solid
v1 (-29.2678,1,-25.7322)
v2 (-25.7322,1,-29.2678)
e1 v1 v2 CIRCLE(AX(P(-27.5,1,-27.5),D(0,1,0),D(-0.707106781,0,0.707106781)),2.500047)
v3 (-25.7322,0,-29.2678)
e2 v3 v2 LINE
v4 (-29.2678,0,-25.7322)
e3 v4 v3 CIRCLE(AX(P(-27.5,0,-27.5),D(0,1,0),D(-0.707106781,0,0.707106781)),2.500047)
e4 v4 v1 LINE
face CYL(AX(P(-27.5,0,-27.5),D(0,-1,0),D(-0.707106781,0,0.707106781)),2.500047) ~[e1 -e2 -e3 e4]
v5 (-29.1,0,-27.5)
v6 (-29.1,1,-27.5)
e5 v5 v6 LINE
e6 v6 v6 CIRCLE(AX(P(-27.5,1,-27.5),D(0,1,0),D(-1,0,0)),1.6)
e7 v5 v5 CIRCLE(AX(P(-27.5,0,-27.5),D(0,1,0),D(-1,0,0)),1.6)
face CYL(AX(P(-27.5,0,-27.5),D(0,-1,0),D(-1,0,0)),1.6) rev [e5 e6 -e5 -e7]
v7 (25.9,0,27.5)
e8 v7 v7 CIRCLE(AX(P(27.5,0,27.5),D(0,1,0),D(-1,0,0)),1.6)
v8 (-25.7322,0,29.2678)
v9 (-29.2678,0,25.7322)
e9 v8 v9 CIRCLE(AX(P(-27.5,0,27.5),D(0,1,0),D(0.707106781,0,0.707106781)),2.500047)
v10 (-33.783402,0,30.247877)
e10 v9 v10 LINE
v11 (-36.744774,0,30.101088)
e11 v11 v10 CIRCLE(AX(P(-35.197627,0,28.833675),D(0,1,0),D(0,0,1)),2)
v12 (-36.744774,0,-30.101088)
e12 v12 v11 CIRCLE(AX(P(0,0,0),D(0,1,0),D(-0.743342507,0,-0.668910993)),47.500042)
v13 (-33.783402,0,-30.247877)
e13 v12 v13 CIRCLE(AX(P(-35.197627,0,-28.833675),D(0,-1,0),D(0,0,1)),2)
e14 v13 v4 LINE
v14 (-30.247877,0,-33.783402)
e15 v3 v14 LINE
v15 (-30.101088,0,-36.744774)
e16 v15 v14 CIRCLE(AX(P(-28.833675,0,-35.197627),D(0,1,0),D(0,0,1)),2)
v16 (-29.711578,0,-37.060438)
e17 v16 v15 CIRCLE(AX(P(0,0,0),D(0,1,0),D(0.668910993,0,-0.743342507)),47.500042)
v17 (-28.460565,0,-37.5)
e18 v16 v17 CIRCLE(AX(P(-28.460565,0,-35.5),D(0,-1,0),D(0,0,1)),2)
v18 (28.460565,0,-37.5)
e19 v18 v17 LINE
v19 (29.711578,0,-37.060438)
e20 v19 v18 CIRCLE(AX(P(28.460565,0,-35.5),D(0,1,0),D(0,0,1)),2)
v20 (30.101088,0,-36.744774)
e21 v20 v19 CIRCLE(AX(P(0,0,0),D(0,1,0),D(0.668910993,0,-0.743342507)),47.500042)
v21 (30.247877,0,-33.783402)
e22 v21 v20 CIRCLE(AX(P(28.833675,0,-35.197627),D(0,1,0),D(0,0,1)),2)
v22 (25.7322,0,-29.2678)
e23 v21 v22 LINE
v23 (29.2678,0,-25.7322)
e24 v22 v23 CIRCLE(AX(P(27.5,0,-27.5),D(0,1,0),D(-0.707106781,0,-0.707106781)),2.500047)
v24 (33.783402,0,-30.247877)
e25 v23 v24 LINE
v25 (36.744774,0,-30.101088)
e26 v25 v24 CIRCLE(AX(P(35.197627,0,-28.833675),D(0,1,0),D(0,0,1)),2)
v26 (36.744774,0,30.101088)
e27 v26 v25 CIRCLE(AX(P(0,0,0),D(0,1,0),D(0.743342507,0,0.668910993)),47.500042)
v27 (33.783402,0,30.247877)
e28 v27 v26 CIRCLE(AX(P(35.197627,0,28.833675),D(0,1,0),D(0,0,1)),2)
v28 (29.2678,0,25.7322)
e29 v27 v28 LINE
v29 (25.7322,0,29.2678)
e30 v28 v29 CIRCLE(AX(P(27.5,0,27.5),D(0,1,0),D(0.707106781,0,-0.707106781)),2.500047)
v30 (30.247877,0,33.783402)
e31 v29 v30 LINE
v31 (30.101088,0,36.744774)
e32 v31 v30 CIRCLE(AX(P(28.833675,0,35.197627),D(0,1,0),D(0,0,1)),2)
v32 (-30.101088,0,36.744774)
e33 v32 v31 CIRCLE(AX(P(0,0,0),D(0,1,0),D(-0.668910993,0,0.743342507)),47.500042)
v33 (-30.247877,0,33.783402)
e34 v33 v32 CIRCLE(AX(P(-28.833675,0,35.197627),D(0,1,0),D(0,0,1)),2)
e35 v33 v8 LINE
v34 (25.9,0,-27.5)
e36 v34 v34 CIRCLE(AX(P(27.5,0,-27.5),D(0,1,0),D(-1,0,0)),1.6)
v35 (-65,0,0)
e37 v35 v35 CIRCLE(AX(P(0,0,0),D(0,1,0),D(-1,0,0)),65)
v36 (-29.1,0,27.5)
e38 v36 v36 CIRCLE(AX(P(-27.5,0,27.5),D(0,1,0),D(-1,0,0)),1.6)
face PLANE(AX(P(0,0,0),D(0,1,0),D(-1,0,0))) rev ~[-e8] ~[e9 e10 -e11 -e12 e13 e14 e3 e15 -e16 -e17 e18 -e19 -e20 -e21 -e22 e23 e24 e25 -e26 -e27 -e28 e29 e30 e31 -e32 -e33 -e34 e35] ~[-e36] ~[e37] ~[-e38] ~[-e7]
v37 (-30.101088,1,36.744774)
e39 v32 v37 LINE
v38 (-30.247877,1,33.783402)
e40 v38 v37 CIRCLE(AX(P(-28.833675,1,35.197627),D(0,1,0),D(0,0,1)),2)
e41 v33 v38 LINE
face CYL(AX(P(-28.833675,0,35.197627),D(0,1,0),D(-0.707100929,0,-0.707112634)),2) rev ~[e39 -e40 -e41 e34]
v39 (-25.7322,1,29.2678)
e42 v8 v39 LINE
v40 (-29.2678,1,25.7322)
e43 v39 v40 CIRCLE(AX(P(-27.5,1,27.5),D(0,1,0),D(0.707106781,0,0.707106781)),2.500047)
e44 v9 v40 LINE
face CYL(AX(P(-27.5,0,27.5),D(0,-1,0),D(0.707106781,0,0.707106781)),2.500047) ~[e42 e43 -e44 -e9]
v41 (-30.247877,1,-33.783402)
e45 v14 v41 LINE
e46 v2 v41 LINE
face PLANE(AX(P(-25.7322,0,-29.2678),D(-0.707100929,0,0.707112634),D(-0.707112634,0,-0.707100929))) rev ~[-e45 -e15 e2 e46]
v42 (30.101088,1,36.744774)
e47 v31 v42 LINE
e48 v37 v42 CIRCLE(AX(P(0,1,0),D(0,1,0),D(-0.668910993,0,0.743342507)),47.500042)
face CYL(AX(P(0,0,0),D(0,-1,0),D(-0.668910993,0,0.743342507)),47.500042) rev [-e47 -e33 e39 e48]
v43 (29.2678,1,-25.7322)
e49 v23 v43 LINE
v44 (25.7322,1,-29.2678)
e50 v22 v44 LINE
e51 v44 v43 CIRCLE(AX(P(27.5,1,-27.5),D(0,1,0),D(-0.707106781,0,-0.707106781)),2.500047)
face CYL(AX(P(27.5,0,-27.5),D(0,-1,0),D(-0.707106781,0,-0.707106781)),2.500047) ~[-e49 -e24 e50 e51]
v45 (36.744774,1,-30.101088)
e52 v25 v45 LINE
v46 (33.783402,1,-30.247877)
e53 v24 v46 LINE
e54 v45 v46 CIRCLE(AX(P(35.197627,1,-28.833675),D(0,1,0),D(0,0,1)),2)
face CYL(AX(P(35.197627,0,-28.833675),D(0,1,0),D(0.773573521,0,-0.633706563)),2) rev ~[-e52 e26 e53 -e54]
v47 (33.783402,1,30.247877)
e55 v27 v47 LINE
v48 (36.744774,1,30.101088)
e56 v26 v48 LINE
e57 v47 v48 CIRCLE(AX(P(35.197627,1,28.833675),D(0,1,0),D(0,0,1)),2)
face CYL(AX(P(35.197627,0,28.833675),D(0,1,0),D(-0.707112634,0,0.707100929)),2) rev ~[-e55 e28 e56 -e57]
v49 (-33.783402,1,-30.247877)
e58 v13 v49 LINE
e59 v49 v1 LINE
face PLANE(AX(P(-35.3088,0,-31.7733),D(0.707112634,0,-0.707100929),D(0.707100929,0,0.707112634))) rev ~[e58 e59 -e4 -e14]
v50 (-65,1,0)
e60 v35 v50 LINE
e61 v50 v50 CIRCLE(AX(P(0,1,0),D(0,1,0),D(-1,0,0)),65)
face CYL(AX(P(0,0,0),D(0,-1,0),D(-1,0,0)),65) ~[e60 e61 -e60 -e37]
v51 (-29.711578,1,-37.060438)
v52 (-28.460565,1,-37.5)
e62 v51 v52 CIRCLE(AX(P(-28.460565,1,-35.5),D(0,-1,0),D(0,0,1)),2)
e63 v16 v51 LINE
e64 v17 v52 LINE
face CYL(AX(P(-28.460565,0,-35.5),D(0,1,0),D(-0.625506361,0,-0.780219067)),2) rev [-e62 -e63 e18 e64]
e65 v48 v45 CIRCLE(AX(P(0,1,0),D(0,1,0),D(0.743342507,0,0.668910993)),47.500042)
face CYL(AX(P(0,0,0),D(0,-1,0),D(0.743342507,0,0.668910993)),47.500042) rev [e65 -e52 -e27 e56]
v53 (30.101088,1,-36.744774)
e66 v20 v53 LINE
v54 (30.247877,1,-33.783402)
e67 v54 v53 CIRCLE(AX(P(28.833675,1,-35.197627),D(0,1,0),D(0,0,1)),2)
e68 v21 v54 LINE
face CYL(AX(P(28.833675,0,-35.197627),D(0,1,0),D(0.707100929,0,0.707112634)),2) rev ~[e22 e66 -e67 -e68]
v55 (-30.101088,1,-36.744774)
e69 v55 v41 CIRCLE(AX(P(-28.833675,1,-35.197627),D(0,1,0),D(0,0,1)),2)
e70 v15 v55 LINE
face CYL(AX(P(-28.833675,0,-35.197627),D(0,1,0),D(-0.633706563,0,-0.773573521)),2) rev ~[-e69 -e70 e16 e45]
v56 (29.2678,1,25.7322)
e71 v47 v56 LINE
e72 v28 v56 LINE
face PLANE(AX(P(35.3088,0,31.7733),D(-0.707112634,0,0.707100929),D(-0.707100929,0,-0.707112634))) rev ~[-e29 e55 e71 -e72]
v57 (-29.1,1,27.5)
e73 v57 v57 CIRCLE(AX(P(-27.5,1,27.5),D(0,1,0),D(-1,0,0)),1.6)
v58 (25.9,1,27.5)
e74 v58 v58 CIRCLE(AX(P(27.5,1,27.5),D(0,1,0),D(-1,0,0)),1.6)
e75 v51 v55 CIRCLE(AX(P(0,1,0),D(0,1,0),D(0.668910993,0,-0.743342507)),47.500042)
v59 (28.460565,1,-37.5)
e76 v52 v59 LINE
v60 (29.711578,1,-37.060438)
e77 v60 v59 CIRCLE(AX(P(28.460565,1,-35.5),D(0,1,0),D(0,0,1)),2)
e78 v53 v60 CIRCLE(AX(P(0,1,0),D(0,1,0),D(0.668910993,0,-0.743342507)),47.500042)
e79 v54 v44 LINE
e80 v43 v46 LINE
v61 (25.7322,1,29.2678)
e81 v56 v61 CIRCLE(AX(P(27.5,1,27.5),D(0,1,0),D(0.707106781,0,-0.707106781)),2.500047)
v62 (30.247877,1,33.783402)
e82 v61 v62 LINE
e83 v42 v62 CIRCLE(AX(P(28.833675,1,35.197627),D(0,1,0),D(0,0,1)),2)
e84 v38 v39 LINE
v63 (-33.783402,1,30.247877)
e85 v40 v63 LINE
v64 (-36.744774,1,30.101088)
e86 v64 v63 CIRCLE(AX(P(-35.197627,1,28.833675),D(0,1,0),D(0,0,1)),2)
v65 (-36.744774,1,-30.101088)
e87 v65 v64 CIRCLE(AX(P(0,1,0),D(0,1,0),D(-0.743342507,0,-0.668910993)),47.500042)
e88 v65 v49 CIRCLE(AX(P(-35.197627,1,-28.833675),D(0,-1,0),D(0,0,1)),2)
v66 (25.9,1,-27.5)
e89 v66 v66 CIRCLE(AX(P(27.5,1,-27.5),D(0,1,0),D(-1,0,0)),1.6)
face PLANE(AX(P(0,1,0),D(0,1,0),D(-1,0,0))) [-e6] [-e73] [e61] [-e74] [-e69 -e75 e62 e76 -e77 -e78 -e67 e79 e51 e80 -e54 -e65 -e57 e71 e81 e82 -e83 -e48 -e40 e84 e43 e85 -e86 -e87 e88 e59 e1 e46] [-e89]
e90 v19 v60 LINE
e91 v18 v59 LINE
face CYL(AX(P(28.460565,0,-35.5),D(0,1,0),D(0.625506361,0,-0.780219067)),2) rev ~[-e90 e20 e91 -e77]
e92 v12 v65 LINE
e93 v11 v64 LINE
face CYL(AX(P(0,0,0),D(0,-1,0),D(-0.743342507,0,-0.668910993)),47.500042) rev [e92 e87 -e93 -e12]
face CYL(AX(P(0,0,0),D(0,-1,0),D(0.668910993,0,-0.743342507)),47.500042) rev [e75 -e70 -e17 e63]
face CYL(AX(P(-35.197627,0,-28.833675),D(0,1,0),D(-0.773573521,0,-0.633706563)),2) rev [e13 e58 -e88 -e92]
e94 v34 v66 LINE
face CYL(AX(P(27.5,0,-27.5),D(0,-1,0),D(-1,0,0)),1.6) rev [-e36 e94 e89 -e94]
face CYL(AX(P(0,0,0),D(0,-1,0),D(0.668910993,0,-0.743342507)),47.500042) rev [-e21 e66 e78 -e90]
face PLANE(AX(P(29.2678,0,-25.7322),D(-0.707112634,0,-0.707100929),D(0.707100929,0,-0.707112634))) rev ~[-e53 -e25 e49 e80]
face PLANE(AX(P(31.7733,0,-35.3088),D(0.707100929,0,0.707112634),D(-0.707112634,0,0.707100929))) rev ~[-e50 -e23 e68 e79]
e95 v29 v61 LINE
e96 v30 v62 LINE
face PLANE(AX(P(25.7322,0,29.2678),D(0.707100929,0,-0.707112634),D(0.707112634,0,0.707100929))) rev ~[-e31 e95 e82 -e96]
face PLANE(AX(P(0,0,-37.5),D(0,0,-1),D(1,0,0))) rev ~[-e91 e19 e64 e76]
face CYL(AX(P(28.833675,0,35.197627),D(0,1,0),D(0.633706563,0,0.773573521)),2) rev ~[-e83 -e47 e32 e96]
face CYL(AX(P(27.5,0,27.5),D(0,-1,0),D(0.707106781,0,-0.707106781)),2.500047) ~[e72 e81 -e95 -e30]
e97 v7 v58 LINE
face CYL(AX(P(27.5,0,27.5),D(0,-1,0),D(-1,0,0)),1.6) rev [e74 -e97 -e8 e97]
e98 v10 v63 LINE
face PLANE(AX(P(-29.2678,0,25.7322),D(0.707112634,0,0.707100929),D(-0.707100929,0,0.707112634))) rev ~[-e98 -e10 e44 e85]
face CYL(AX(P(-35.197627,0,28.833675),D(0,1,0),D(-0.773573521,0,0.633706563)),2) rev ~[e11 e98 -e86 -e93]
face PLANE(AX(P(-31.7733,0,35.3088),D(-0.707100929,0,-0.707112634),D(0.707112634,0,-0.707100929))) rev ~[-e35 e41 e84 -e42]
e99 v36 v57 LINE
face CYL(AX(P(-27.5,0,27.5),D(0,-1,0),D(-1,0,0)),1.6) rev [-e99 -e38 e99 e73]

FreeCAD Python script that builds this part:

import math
import FreeCAD as App
import Part
import Sketcher


def edges_at(feature, points):
    """Names of the edges that pass closest to the given points."""
    edges = feature.Shape.Edges
    near = lambda p: min(range(len(edges)), key=lambda i: edges[i].distToShape(Part.Vertex(*p))[0])
    return sorted({f"Edge{near(p) + 1}" for p in points})

doc = App.newDocument("Part")
params = doc.addObject("Spreadsheet::Sheet", "Params")
for row, (alias, value) in enumerate([
    ("sketch1_diameter", "130 mm"),
    ("sketch1_diameter2", "3.2 mm"),
    ("sketch1_radius", "2.5 mm"),
    ("sketch1_radius2", "47.5 mm"),
    ("pad1_length", "1 mm"),
    ("fillet_radius", "2 mm"),
], start=1):
    params.set(f"A{row}", alias)
    params.set(f"B{row}", "=" + value)
    params.setAlias(f"B{row}", alias)

body = doc.addObject("PartDesign::Body", "Body")

sketch1 = body.newObject("Sketcher::SketchObject", "Sketch")
sketch1.AttachmentSupport = (doc.getObject("XZ_Plane"), [""])
sketch1.MapMode = "FlatFace"
sketch1.addGeometry(Part.Circle(App.Vector(0, 0, 0), App.Vector(0, 0, 1), 65), False)
sketch1.addGeometry(Part.Circle(App.Vector(27.5, -27.5, 0), App.Vector(0, 0, 1), 1.6), False)
sketch1.addGeometry(Part.Circle(App.Vector(-27.5, -27.5, 0), App.Vector(0, 0, 1), 1.6), False)
sketch1.addGeometry(Part.Circle(App.Vector(27.5, 27.5, 0), App.Vector(0, 0, 1), 1.6), False)
sketch1.addGeometry(Part.ArcOfCircle(Part.Circle(App.Vector(0, 0, 0), App.Vector(0, 0, 1), 47.5), math.radians(138), math.radians(222)), False)
sketch1.addGeometry(Part.LineSegment(App.Vector(-35.3, -31.8, 0), App.Vector(-29.3, -25.7, 0)), False)
sketch1.addGeometry(Part.ArcOfCircle(Part.Circle(App.Vector(-27.5, -27.5, 0), App.Vector(0, 0, 1), 2.5), math.radians(-45), math.radians(135)), False)
sketch1.addGeometry(Part.LineSegment(App.Vector(-25.7, -29.3, 0), App.Vector(-31.8, -35.3, 0)), False)
sketch1.addGeometry(Part.ArcOfCircle(Part.Circle(App.Vector(0, 0, 0), App.Vector(0, 0, 1), 47.5), math.radians(-131.98), math.radians(-127.86)), False)
sketch1.addGeometry(Part.LineSegment(App.Vector(-29.2, -37.5, 0), App.Vector(29.2, -37.5, 0)), False)
sketch1.addGeometry(Part.ArcOfCircle(Part.Circle(App.Vector(0, 0, 0), App.Vector(0, 0, 1), 47.5), math.radians(-52.14), math.radians(-48.02)), False)
sketch1.addGeometry(Part.LineSegment(App.Vector(31.8, -35.3, 0), App.Vector(25.7, -29.3, 0)), False)
sketch1.addGeometry(Part.ArcOfCircle(Part.Circle(App.Vector(27.5, -27.5, 0), App.Vector(0, 0, 1), 2.5), math.radians(45), math.radians(225)), False)
sketch1.addGeometry(Part.LineSegment(App.Vector(29.3, -25.7, 0), App.Vector(35.3, -31.8, 0)), False)
sketch1.addGeometry(Part.ArcOfCircle(Part.Circle(App.Vector(0, 0, 0), App.Vector(0, 0, 1), 47.5), math.radians(-42), math.radians(42)), False)
sketch1.addGeometry(Part.LineSegment(App.Vector(35.3, 31.8, 0), App.Vector(29.3, 25.7, 0)), False)
sketch1.addGeometry(Part.ArcOfCircle(Part.Circle(App.Vector(27.5, 27.5, 0), App.Vector(0, 0, 1), 2.5), math.radians(135), math.radians(315)), False)
sketch1.addGeometry(Part.LineSegment(App.Vector(25.7, 29.3, 0), App.Vector(31.8, 35.3, 0)), False)
sketch1.addGeometry(Part.ArcOfCircle(Part.Circle(App.Vector(0, 0, 0), App.Vector(0, 0, 1), 47.5), math.radians(48), math.radians(132)), False)
sketch1.addGeometry(Part.LineSegment(App.Vector(-31.8, 35.3, 0), App.Vector(-25.7, 29.3, 0)), False)
sketch1.addGeometry(Part.ArcOfCircle(Part.Circle(App.Vector(-27.5, 27.5, 0), App.Vector(0, 0, 1), 2.5), math.radians(-135), math.radians(45)), False)
sketch1.addGeometry(Part.LineSegment(App.Vector(-29.3, 25.7, 0), App.Vector(-35.3, 31.8, 0)), False)
sketch1.addGeometry(Part.Circle(App.Vector(-27.5, 27.5, 0), App.Vector(0, 0, 1), 1.6), False)
sketch1.addConstraint(Sketcher.Constraint("Coincident", 4, 2, 5, 1))
sketch1.addConstraint(Sketcher.Constraint("Tangent", 5, 2, 6, 2))
sketch1.addConstraint(Sketcher.Constraint("Tangent", 6, 1, 7, 1))
sketch1.addConstraint(Sketcher.Constraint("Coincident", 7, 2, 8, 1))
sketch1.addConstraint(Sketcher.Constraint("Coincident", 8, 2, 9, 1))
sketch1.addConstraint(Sketcher.Constraint("Coincident", 9, 2, 10, 1))
sketch1.addConstraint(Sketcher.Constraint("Coincident", 10, 2, 11, 1))
sketch1.addConstraint(Sketcher.Constraint("Tangent", 11, 2, 12, 2))
sketch1.addConstraint(Sketcher.Constraint("Tangent", 12, 1, 13, 1))
sketch1.addConstraint(Sketcher.Constraint("Coincident", 13, 2, 14, 1))
sketch1.addConstraint(Sketcher.Constraint("Coincident", 14, 2, 15, 1))
sketch1.addConstraint(Sketcher.Constraint("Tangent", 15, 2, 16, 2))
sketch1.addConstraint(Sketcher.Constraint("Tangent", 16, 1, 17, 1))
sketch1.addConstraint(Sketcher.Constraint("Coincident", 17, 2, 18, 1))
sketch1.addConstraint(Sketcher.Constraint("Coincident", 18, 2, 19, 1))
sketch1.addConstraint(Sketcher.Constraint("Tangent", 19, 2, 20, 2))
sketch1.addConstraint(Sketcher.Constraint("Tangent", 20, 1, 21, 1))
sketch1.addConstraint(Sketcher.Constraint("Coincident", 21, 2, 4, 1))
sketch1.addConstraint(Sketcher.Constraint("Horizontal", 9))
sketch1.addConstraint(Sketcher.Constraint("Coincident", 0, 3, -1, 1))
sketch1.addConstraint(Sketcher.Constraint("Coincident", 4, 3, -1, 1))
sketch1.addConstraint(Sketcher.Constraint("Coincident", 8, 3, -1, 1))
sketch1.addConstraint(Sketcher.Constraint("Coincident", 10, 3, -1, 1))
sketch1.addConstraint(Sketcher.Constraint("Coincident", 14, 3, -1, 1))
sketch1.addConstraint(Sketcher.Constraint("Coincident", 18, 3, -1, 1))
sketch1.addConstraint(Sketcher.Constraint("Coincident", 6, 3, 2, 3))
sketch1.addConstraint(Sketcher.Constraint("Coincident", 12, 3, 1, 3))
sketch1.addConstraint(Sketcher.Constraint("Coincident", 16, 3, 3, 3))
sketch1.addConstraint(Sketcher.Constraint("Coincident", 22, 3, 20, 3))
sketch1.addConstraint(Sketcher.Constraint("Equal", 1, 2))
sketch1.addConstraint(Sketcher.Constraint("Equal", 2, 3))
sketch1.addConstraint(Sketcher.Constraint("Equal", 4, 8))
sketch1.addConstraint(Sketcher.Constraint("Equal", 8, 10))
sketch1.addConstraint(Sketcher.Constraint("Equal", 6, 12))
sketch1.addConstraint(Sketcher.Constraint("Equal", 10, 14))
sketch1.addConstraint(Sketcher.Constraint("Equal", 12, 16))
sketch1.addConstraint(Sketcher.Constraint("Equal", 14, 18))
sketch1.addConstraint(Sketcher.Constraint("Equal", 16, 20))
sketch1.addConstraint(Sketcher.Constraint("Equal", 3, 22))
sketch1.addConstraint(Sketcher.Constraint("Symmetric", 2, 3, 3, 3, -1, 1))
sketch1.addConstraint(Sketcher.Constraint("Symmetric", 1, 3, 20, 3, -1, 1))
sketch1.addConstraint(Sketcher.Constraint("Symmetric", 1, 3, 2, 3, -2))
sketch1.addConstraint(Sketcher.Constraint("Parallel", 5, 7))
sketch1.addConstraint(Sketcher.Constraint("Perpendicular", 7, 11))
sketch1.addConstraint(Sketcher.Constraint("Parallel", 11, 13))
sketch1.addConstraint(Sketcher.Constraint("Perpendicular", 13, 15))
sketch1.addConstraint(Sketcher.Constraint("Parallel", 15, 17))
sketch1.addConstraint(Sketcher.Constraint("Perpendicular", 17, 19))
sketch1.addConstraint(Sketcher.Constraint("Parallel", 19, 21))
sketch1.addConstraint(Sketcher.Constraint("Horizontal", 7, 2, 10, 2))
sketch1.addConstraint(Sketcher.Constraint("Equal", 5, 7))
sketch1.addConstraint(Sketcher.Constraint("Diameter", 0, 130.0))
sketch1.addConstraint(Sketcher.Constraint("Diameter", 1, 3.2))
sketch1.addConstraint(Sketcher.Constraint("Radius", 6, 2.5))
sketch1.addConstraint(Sketcher.Constraint("DistanceX", 2, 3, 1, 3, 55.0))
sketch1.addConstraint(Sketcher.Constraint("DistanceY", 8, 2, 2, 3, 10.0))
sketch1.addConstraint(Sketcher.Constraint("Radius", 4, 47.5))
sketch1.setExpression("Constraints[51]", "Params.sketch1_diameter")
sketch1.setExpression("Constraints[52]", "Params.sketch1_diameter2")
sketch1.setExpression("Constraints[53]", "Params.sketch1_radius")
sketch1.setExpression("Constraints[56]", "Params.sketch1_radius2")
pad1 = body.newObject("PartDesign::Pad", "Pad")
pad1.Profile = sketch1
pad1.setExpression("Length", "Params.pad1_length")
pad1.Reversed = True
doc.recompute()

fillet = body.newObject("PartDesign::Fillet", "Fillet")
fillet.Base = (pad1, edges_at(pad1, [
    (-31.773, 0.5, 35.309),
    (-35.309, 0.5, 31.773),
    (-31.773, 0.5, -35.309),
    (-35.309, 0.5, -31.773),
    (35.309, 0.5, -31.773),
    (31.773, 0.5, -35.309),
    (31.773, 0.5, 35.309),
    (35.309, 0.5, 31.773),
    (-29.155, 0.5, -37.5),
    (29.155, 0.5, -37.5),
]))
fillet.setExpression("Radius", "Params.fillet_radius")

doc.recompute()
